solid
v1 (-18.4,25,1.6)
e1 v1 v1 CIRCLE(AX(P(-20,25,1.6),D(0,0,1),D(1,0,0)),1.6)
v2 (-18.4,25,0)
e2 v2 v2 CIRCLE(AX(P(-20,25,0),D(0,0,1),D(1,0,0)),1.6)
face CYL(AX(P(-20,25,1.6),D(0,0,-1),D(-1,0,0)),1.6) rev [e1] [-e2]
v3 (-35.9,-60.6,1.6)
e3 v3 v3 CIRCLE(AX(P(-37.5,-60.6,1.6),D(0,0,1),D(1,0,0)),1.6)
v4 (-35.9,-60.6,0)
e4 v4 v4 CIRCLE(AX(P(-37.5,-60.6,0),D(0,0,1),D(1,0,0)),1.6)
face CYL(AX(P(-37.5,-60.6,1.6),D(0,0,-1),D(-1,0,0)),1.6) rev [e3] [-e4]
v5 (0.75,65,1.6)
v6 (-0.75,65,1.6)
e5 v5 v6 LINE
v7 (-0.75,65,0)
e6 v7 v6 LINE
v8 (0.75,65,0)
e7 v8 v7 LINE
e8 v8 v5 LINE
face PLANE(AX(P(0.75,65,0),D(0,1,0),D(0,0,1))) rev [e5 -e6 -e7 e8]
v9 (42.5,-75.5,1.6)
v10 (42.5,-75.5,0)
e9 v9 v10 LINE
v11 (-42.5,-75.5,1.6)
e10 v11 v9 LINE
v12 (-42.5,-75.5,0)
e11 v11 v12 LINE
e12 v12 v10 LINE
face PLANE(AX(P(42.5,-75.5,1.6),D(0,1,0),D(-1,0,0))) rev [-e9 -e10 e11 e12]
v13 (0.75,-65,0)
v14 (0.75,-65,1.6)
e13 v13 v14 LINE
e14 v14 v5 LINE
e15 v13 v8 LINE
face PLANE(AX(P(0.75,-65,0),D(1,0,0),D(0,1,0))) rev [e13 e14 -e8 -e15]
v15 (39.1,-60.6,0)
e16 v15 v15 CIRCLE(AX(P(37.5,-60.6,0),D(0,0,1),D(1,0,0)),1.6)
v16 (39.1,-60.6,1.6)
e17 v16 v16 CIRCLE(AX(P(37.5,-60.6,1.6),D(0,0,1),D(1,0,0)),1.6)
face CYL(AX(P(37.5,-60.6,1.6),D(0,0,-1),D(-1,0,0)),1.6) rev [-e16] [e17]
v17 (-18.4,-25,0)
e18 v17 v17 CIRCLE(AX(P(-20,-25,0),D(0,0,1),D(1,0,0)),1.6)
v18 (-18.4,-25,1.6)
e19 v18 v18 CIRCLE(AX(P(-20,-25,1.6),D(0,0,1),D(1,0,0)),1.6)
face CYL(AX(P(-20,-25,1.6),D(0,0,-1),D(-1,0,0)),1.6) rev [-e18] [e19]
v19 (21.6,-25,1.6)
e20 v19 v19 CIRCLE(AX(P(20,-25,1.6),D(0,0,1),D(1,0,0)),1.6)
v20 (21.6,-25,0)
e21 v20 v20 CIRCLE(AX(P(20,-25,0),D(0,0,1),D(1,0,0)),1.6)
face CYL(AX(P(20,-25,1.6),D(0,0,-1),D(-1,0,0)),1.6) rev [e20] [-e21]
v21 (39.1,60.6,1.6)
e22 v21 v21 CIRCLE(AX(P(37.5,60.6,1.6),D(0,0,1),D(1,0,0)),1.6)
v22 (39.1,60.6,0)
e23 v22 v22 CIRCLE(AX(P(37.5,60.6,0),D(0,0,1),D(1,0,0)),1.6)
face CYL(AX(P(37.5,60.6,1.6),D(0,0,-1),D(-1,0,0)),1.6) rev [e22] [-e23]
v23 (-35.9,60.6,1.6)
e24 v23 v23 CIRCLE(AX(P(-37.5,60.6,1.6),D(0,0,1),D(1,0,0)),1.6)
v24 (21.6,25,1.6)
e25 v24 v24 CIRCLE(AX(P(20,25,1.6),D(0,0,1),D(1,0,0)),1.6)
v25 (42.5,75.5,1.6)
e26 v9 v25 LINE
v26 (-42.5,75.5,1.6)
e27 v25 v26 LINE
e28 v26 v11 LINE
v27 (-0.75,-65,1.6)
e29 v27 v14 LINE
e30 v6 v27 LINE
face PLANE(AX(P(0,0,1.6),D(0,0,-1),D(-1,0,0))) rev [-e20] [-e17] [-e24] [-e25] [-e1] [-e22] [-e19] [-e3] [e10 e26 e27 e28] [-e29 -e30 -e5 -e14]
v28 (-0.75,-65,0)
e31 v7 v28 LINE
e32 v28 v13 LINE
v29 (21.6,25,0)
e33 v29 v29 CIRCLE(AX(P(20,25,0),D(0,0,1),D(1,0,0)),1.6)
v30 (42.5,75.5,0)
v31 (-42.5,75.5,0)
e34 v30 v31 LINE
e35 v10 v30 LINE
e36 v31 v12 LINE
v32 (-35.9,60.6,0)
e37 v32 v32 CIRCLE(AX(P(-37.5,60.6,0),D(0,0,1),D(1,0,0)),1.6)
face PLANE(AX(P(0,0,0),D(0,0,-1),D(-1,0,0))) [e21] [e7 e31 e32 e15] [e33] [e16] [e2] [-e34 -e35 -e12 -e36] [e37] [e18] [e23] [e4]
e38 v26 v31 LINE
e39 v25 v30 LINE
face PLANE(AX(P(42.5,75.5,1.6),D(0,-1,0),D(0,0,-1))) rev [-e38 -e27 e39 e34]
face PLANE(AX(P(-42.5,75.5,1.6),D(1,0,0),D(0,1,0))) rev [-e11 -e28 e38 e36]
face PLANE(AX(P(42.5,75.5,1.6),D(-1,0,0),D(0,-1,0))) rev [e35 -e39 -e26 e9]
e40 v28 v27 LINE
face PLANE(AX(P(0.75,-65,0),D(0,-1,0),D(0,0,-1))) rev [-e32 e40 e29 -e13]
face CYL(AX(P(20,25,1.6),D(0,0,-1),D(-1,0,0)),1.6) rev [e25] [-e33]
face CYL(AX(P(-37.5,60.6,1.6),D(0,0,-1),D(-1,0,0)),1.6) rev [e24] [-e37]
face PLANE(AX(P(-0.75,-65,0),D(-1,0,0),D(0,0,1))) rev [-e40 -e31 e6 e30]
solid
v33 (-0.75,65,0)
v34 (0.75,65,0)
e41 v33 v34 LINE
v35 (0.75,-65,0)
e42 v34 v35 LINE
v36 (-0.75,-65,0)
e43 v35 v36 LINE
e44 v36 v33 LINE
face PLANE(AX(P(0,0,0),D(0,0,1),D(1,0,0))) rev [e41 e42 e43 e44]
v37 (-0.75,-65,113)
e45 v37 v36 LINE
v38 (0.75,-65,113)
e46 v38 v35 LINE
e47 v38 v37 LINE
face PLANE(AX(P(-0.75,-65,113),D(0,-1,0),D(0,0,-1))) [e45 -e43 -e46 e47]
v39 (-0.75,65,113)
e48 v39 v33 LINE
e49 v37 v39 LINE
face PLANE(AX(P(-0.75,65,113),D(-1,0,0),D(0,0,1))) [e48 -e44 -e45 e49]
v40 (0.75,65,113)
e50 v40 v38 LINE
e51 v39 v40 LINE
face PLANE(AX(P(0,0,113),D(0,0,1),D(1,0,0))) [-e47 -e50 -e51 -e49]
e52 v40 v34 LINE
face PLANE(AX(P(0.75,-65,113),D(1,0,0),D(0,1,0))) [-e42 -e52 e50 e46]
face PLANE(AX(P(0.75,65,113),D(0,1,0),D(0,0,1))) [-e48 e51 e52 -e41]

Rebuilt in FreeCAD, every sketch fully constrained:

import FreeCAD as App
import Part
import Sketcher

V = App.Vector

doc = App.newDocument("Part")
body = doc.addObject("PartDesign::Body", "Body")

sketch1 = body.newObject("Sketcher::SketchObject", "Sketch")
sketch1.AttachmentSupport = (doc.getObject("XY_Plane"), [""])
sketch1.MapMode = "FlatFace"
sketch1.addGeometry([
    Part.LineSegment(V(-42.5, 75.5, 0), V(-42.5, -75.5, 0)),
    Part.LineSegment(V(-42.5, -75.5, 0), V(42.5, -75.5, 0)),
    Part.LineSegment(V(42.5, -75.5, 0), V(42.5, 75.5, 0)),
    Part.LineSegment(V(42.5, 75.5, 0), V(-42.5, 75.5, 0)),
    Part.Circle(V(-37.5, -60.6, 0), V(0, 0, 1), 1.6),
    Part.Circle(V(-20, -25, 0), V(0, 0, 1), 1.6),
    Part.Circle(V(37.5, -60.6, 0), V(0, 0, 1), 1.6),
    Part.Circle(V(20, -25, 0), V(0, 0, 1), 1.6),
    Part.Circle(V(-20, 25, 0), V(0, 0, 1), 1.6),
    Part.Circle(V(-37.5, 60.6, 0), V(0, 0, 1), 1.6),
    Part.Circle(V(20, 25, 0), V(0, 0, 1), 1.6),
    Part.Circle(V(37.5, 60.6, 0), V(0, 0, 1), 1.6),
], False)
sketch1.addConstraint([
    Sketcher.Constraint("Coincident", 0, 2, 1, 1),
    Sketcher.Constraint("Coincident", 1, 2, 2, 1),
    Sketcher.Constraint("Coincident", 2, 2, 3, 1),
    Sketcher.Constraint("Coincident", 3, 2, 0, 1),
    Sketcher.Constraint("Vertical", 0),
    Sketcher.Constraint("Horizontal", 1),
    Sketcher.Constraint("Vertical", 2),
    Sketcher.Constraint("Horizontal", 3),
    Sketcher.Constraint("Equal", 4, 5),
    Sketcher.Constraint("Equal", 5, 6),
    Sketcher.Constraint("Equal", 6, 7),
    Sketcher.Constraint("Equal", 7, 8),
    Sketcher.Constraint("Equal", 8, 9),
    Sketcher.Constraint("Equal", 9, 10),
    Sketcher.Constraint("Equal", 10, 11),
    Sketcher.Constraint("Symmetric", 7, 3, 8, 3, -1, 1),
    Sketcher.Constraint("Symmetric", 6, 3, 9, 3, -1, 1),
    Sketcher.Constraint("Symmetric", 5, 3, 10, 3, -1, 1),
    Sketcher.Constraint("Symmetric", 4, 3, 11, 3, -1, 1),
    Sketcher.Constraint("Symmetric", 0, 2, 2, 2, -1, 1),
    Sketcher.Constraint("Symmetric", 4, 3, 6, 3, -2),
    Sketcher.Constraint("Symmetric", 5, 3, 7, 3, -2),
    Sketcher.Constraint("Diameter", 4, 3.2),
    Sketcher.Constraint("DistanceX", 1, 1, 1, 2, 85.0),
    Sketcher.Constraint("DistanceY", 0, 2, 0, 1, 151.0),
    Sketcher.Constraint("DistanceX", 5, 3, -1, 1, 20.0),
    Sketcher.Constraint("DistanceY", 5, 3, -1, 1, 25.0),
    Sketcher.Constraint("DistanceX", 4, 3, 6, 3, 75.0),
    Sketcher.Constraint("DistanceY", 4, 3, -1, 1, 60.6),
])
pad1 = body.newObject("PartDesign::Pad", "Pad")
pad1.Profile = sketch1
pad1.Length = 1.6

sketch2 = body.newObject("Sketcher::SketchObject", "Sketch001")
sketch2.AttachmentSupport = (doc.getObject("XY_Plane"), [""])
sketch2.MapMode = "FlatFace"
sketch2.AttachmentOffset = App.Placement(V(0, 0, 1.6), App.Rotation())
sketch2.addGeometry([
    Part.LineSegment(V(-0.75, 65, 0), V(-0.75, -65, 0)),
    Part.LineSegment(V(-0.75, -65, 0), V(0.75, -65, 0)),
    Part.LineSegment(V(0.75, -65, 0), V(0.75, 65, 0)),
    Part.LineSegment(V(0.75, 65, 0), V(-0.75, 65, 0)),
], False)
sketch2.addConstraint([
    Sketcher.Constraint("Coincident", 0, 2, 1, 1),
    Sketcher.Constraint("Coincident", 1, 2, 2, 1),
    Sketcher.Constraint("Coincident", 2, 2, 3, 1),
    Sketcher.Constraint("Coincident", 3, 2, 0, 1),
    Sketcher.Constraint("Vertical", 0),
    Sketcher.Constraint("Horizontal", 1),
    Sketcher.Constraint("Vertical", 2),
    Sketcher.Constraint("Horizontal", 3),
    Sketcher.Constraint("Symmetric", 0, 2, 2, 2, -1, 1),
    Sketcher.Constraint("DistanceY", 0, 2, 0, 1, 130.0),
    Sketcher.Constraint("DistanceX", 1, 1, 1, 2, 1.5),
])
pocket1 = body.newObject("PartDesign::Pocket", "Pocket")
pocket1.Profile = sketch2
pocket1.Length = 1.6
body2 = doc.addObject("PartDesign::Body", "Body001")

sketch3 = body2.newObject("Sketcher::SketchObject", "Sketch002")
sketch3.AttachmentSupport = (doc.getObject("XY_Plane001"), [""])
sketch3.MapMode = "FlatFace"
sketch3.addGeometry([
    Part.LineSegment(V(0.75, 65, 0), V(0.75, -65, 0)),
    Part.LineSegment(V(0.75, -65, 0), V(-0.75, -65, 0)),
    Part.LineSegment(V(-0.75, -65, 0), V(-0.75, 65, 0)),
    Part.LineSegment(V(-0.75, 65, 0), V(0.75, 65, 0)),
], False)
sketch3.addConstraint([
    Sketcher.Constraint("Coincident", 0, 2, 1, 1),
    Sketcher.Constraint("Coincident", 1, 2, 2, 1),
    Sketcher.Constraint("Coincident", 2, 2, 3, 1),
    Sketcher.Constraint("Coincident", 3, 2, 0, 1),
    Sketcher.Constraint("Vertical", 0),
    Sketcher.Constraint("Horizontal", 1),
    Sketcher.Constraint("Vertical", 2),
    Sketcher.Constraint("Horizontal", 3),
    Sketcher.Constraint("Symmetric", 0, 2, 2, 2, -1, 1),
    Sketcher.Constraint("DistanceY", 0, 2, 0, 1, 130.0),
    Sketcher.Constraint("DistanceX", 1, 2, 1, 1, 1.5),
])
pad2 = body2.newObject("PartDesign::Pad", "Pad001")
pad2.Profile = sketch3
pad2.Length = 113

doc.recompute()
